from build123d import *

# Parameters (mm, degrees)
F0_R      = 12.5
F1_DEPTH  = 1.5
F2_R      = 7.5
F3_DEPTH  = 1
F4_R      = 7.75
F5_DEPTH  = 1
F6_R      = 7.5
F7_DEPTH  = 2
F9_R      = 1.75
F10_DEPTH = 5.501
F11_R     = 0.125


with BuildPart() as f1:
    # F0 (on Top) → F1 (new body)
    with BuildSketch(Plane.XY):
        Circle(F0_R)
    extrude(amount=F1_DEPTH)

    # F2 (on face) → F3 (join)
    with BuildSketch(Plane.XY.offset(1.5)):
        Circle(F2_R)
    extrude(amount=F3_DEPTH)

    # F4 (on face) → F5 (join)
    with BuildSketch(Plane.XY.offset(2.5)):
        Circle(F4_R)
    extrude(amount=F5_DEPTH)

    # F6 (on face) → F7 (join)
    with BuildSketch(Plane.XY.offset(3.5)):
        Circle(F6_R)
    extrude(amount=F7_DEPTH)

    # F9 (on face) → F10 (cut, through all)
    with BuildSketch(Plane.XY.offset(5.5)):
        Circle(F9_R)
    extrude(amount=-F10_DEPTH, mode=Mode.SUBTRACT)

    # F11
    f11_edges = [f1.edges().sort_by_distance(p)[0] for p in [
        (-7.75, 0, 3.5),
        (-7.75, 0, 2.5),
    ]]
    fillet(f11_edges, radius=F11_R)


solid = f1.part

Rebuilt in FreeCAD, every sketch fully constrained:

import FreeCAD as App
import Part
import Sketcher
from FreeCAD import Vector


def edges_at(feature, points):
    """Names of the edges that pass closest to the given points."""
    edges = feature.Shape.Edges
    near = lambda p: min(range(len(edges)), key=lambda i: edges[i].distToShape(Part.Vertex(*p))[0])
    return sorted({f"Edge{near(p) + 1}" for p in points})

doc = App.newDocument("Part")
params = doc.addObject("Spreadsheet::Sheet", "Params")
for row, (alias, value) in enumerate([
    ("sketch1_diameter", "25 mm"),
    ("pad1_length", "1.5 mm"),
    ("sketch2_diameter", "15 mm"),
    ("pad2_length", "1 mm"),
    ("sketch3_diameter", "15.5 mm"),
    ("pad3_length", "1 mm"),
    ("sketch4_diameter", "15 mm"),
    ("pad4_length", "2 mm"),
    ("sketch5_diameter", "3.5 mm"),
    ("fillet_radius", "0.125 mm"),
], start=1):
    params.set(f"A{row}", alias)
    params.set(f"B{row}", "=" + value)
    params.setAlias(f"B{row}", alias)

body = doc.addObject("PartDesign::Body", "Body")

sketch1 = doc.addObject("Sketcher::SketchObject", "Sketch")
body.addObject(sketch1)
sketch1.AttachmentSupport = (doc.XY_Plane, [""])
sketch1.MapMode = "FlatFace"
sketch1.addGeometry(Part.Circle(Vector(0, 0, 0), Vector(0, 0, 1), 12), False)
sketch1.addConstraint(Sketcher.Constraint("Coincident", 0, 3, -1, 1))
sketch1.addConstraint(Sketcher.Constraint("Diameter", 0, 25.0))
sketch1.setExpression("Constraints[1]", "Params.sketch1_diameter")
pad1 = doc.addObject("PartDesign::Pad", "Pad")
body.addObject(pad1)
pad1.Profile = sketch1
pad1.setExpression("Length", "Params.pad1_length")

sketch2 = doc.addObject("Sketcher::SketchObject", "Sketch001")
body.addObject(sketch2)
sketch2.AttachmentSupport = (doc.XY_Plane, [""])
sketch2.MapMode = "FlatFace"
sketch2.AttachmentOffset = App.Placement(Vector(0, 0, 1.5), App.Rotation())
sketch2.addGeometry(Part.Circle(Vector(0, 0, 0), Vector(0, 0, 1), 8), False)
sketch2.addConstraint(Sketcher.Constraint("Coincident", 0, 3, -1, 1))
sketch2.addConstraint(Sketcher.Constraint("Diameter", 0, 15.0))
sketch2.setExpression("Constraints[1]", "Params.sketch2_diameter")
pad2 = doc.addObject("PartDesign::Pad", "Pad001")
body.addObject(pad2)
pad2.Profile = sketch2
pad2.setExpression("Length", "Params.pad2_length")

sketch3 = doc.addObject("Sketcher::SketchObject", "Sketch002")
body.addObject(sketch3)
sketch3.AttachmentSupport = (doc.XY_Plane, [""])
sketch3.MapMode = "FlatFace"
sketch3.AttachmentOffset = App.Placement(Vector(0, 0, 2.5), App.Rotation())
sketch3.addGeometry(Part.Circle(Vector(0, 0, 0), Vector(0, 0, 1), 8), False)
sketch3.addConstraint(Sketcher.Constraint("Coincident", 0, 3, -1, 1))
sketch3.addConstraint(Sketcher.Constraint("Diameter", 0, 15.5))
sketch3.setExpression("Constraints[1]", "Params.sketch3_diameter")
pad3 = doc.addObject("PartDesign::Pad", "Pad002")
body.addObject(pad3)
pad3.Profile = sketch3
pad3.setExpression("Length", "Params.pad3_length")

sketch4 = doc.addObject("Sketcher::SketchObject", "Sketch003")
body.addObject(sketch4)
sketch4.AttachmentSupport = (doc.XY_Plane, [""])
sketch4.MapMode = "FlatFace"
sketch4.AttachmentOffset = App.Placement(Vector(0, 0, 3.5), App.Rotation())
sketch4.addGeometry(Part.Circle(Vector(0, 0, 0), Vector(0, 0, 1), 8), False)
sketch4.addConstraint(Sketcher.Constraint("Coincident", 0, 3, -1, 1))
sketch4.addConstraint(Sketcher.Constraint("Diameter", 0, 15.0))
sketch4.setExpression("Constraints[1]", "Params.sketch4_diameter")
pad4 = doc.addObject("PartDesign::Pad", "Pad003")
body.addObject(pad4)
pad4.Profile = sketch4
pad4.setExpression("Length", "Params.pad4_length")

sketch5 = doc.addObject("Sketcher::SketchObject", "Sketch004")
body.addObject(sketch5)
sketch5.AttachmentSupport = (doc.XY_Plane, [""])
sketch5.MapMode = "FlatFace"
sketch5.AttachmentOffset = App.Placement(Vector(0, 0, 5.5), App.Rotation())
sketch5.addGeometry(Part.Circle(Vector(0, 0, 0), Vector(0, 0, 1), 1.8), False)
sketch5.addConstraint(Sketcher.Constraint("Coincident", 0, 3, -1, 1))
sketch5.addConstraint(Sketcher.Constraint("Diameter", 0, 3.5))
sketch5.setExpression("Constraints[1]", "Params.sketch5_diameter")
pocket1 = doc.addObject("PartDesign::Pocket", "Pocket")
body.addObject(pocket1)
pocket1.Profile = sketch5
pocket1.Type = "ThroughAll"
doc.recompute()

fillet = doc.addObject("PartDesign::Fillet", "Fillet")
body.addObject(fillet)
fillet.Base = (pocket1, edges_at(pocket1, [(-7.75, 0, 3.5), (-7.75, 0, 2.5)]))
fillet.setExpression("Radius", "Params.fillet_radius")

doc.recompute()
